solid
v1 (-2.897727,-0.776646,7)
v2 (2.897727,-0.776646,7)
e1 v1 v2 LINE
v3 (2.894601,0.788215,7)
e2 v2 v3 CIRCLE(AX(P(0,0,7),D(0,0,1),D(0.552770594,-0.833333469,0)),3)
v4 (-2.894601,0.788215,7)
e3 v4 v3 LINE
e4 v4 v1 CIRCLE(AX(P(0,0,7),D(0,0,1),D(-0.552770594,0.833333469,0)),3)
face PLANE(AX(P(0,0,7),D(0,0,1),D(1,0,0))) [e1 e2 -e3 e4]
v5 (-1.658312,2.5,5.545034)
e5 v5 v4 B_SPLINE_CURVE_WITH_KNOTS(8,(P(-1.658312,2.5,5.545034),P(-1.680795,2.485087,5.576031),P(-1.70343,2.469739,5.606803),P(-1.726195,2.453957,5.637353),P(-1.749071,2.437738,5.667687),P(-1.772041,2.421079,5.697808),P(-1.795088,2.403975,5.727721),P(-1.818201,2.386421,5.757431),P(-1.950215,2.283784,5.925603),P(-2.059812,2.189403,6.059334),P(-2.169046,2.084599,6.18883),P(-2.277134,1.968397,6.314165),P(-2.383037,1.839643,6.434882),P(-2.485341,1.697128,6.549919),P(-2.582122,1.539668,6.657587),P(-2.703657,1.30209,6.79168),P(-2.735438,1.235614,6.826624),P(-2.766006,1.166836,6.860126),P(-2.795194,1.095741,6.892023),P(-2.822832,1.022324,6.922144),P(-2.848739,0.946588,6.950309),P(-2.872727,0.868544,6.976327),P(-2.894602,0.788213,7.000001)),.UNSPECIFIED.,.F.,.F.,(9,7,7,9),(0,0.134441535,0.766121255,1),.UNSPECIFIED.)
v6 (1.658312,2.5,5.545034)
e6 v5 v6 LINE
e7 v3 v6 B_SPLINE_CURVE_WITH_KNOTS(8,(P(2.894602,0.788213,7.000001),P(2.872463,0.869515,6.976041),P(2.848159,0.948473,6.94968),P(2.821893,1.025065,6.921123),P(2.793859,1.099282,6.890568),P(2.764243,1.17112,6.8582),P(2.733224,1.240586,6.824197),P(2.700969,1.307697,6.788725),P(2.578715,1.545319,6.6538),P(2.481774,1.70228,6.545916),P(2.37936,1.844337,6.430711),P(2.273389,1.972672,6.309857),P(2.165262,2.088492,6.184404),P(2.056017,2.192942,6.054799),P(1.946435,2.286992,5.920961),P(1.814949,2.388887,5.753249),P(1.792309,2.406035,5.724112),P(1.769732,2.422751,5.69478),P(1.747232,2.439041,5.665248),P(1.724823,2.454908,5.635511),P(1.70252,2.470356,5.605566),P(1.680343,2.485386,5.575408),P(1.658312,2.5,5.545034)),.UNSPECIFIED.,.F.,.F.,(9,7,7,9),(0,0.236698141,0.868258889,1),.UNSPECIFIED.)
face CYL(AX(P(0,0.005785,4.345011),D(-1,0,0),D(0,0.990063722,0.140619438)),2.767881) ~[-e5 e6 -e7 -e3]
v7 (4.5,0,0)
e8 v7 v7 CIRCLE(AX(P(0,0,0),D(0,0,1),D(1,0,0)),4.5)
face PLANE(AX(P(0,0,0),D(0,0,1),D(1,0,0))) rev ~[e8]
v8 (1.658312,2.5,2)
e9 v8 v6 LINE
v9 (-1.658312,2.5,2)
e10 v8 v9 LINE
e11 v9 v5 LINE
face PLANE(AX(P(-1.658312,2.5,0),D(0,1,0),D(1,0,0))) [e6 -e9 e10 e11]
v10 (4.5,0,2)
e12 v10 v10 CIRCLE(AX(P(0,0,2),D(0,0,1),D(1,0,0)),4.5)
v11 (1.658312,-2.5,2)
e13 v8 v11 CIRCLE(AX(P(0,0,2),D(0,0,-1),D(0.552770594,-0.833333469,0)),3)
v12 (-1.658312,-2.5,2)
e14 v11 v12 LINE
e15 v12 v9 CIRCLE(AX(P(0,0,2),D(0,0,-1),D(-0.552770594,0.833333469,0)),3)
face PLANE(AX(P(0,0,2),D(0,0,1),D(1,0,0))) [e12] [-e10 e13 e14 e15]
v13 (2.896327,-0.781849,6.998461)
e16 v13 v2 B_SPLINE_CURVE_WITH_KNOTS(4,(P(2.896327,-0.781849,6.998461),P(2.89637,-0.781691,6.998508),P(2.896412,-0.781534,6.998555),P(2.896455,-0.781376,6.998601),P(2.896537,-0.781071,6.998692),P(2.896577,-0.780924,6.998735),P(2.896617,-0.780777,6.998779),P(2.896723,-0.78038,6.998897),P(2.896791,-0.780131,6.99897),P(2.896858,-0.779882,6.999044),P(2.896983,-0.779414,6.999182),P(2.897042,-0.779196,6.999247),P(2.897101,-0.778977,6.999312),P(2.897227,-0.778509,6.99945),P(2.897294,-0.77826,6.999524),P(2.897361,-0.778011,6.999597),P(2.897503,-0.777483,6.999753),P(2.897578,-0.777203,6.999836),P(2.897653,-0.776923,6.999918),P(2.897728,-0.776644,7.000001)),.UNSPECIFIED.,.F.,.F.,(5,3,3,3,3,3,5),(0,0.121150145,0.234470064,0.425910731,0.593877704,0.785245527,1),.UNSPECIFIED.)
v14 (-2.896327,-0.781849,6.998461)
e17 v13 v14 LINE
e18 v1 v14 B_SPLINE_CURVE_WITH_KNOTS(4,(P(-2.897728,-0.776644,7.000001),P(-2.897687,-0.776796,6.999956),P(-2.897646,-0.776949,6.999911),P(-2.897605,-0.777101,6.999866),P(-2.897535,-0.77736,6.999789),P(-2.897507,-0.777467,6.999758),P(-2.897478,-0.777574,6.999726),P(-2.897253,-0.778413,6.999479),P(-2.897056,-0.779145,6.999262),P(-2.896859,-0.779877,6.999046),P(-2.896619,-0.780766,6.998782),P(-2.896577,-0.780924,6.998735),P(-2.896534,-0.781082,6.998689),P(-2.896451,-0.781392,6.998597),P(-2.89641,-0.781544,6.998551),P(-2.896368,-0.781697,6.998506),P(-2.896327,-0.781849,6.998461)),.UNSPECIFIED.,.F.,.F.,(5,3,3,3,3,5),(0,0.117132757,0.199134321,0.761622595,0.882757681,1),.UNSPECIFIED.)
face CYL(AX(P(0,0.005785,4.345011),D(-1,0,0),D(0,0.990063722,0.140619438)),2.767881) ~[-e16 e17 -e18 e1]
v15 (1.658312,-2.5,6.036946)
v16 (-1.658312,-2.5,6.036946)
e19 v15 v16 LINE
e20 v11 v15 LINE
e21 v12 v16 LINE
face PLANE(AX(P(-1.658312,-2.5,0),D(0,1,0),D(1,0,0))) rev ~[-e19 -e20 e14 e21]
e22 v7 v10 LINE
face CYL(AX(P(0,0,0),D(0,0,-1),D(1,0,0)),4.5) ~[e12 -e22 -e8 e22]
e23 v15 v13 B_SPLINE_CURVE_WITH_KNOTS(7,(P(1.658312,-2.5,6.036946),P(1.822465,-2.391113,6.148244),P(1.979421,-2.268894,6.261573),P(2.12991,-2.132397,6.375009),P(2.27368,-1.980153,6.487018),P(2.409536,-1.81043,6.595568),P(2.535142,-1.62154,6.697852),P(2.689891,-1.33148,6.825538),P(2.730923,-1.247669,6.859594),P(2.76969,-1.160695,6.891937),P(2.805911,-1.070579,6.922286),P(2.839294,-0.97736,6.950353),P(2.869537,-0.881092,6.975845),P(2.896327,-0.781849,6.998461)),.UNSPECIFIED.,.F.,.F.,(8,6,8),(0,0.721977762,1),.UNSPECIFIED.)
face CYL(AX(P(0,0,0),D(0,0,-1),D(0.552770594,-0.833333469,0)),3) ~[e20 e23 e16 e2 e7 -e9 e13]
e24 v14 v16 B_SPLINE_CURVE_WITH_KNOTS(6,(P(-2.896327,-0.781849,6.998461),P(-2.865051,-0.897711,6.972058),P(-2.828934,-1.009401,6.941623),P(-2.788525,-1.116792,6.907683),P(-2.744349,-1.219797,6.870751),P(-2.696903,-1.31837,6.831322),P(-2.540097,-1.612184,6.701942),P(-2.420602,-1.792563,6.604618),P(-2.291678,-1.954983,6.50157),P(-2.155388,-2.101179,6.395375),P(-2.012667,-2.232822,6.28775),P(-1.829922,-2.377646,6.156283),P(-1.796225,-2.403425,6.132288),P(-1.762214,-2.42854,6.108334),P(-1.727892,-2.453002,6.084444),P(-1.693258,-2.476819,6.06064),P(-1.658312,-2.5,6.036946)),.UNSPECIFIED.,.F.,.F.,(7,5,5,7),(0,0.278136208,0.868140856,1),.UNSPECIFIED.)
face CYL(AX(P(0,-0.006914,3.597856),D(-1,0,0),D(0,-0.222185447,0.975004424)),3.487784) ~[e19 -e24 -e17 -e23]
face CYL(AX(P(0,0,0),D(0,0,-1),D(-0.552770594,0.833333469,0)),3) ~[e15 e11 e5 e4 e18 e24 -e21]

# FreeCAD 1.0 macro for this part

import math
import FreeCAD as App
import Part
import Sketcher
Q = App.Units.Quantity

doc = App.newDocument("Part")
body = doc.addObject("PartDesign::Body", "Body")

sketch1 = doc.addObject("Sketcher::SketchObject", "Sketch")
body.addObject(sketch1)
sketch1.AttachmentSupport = (doc.XY_Plane, [""])
sketch1.MapMode = "FlatFace"
sketch1.addGeometry(Part.Circle(App.Vector(0, 0, 0), App.Vector(0, 0, 1), 4.5), False)
sketch1.addConstraint(Sketcher.Constraint("Coincident", 0, 3, -1, 1))
sketch1.addConstraint(Sketcher.Constraint("Diameter", 0, Q("9 mm")))
pad1 = doc.addObject("PartDesign::Pad", "Pad")
body.addObject(pad1)
pad1.Profile = sketch1
pad1.Length = 2

sketch2 = doc.addObject("Sketcher::SketchObject", "Sketch001")
body.addObject(sketch2)
sketch2.AttachmentSupport = (doc.XY_Plane, [""])
sketch2.MapMode = "FlatFace"
sketch2.addGeometry(Part.ArcOfCircle(Part.Circle(App.Vector(0, 0, 0), App.Vector(0, 0, 1), 3), math.radians(123.557296), math.radians(236.442704)), False)
sketch2.addGeometry(Part.LineSegment(App.Vector(-1.658312, -2.5, 0), App.Vector(1.658312, -2.5, 0)), False)
sketch2.addGeometry(Part.ArcOfCircle(Part.Circle(App.Vector(0, 0, 0), App.Vector(0, 0, 1), 3), math.radians(-56.442704), math.radians(56.442704)), False)
sketch2.addGeometry(Part.LineSegment(App.Vector(1.658312, 2.5, 0), App.Vector(-1.658312, 2.5, 0)), False)
sketch2.addConstraint(Sketcher.Constraint("Coincident", 0, 2, 1, 1))
sketch2.addConstraint(Sketcher.Constraint("Coincident", 1, 2, 2, 1))
sketch2.addConstraint(Sketcher.Constraint("Coincident", 2, 2, 3, 1))
sketch2.addConstraint(Sketcher.Constraint("Coincident", 3, 2, 0, 1))
sketch2.addConstraint(Sketcher.Constraint("Horizontal", 1))
sketch2.addConstraint(Sketcher.Constraint("Horizontal", 3))
sketch2.addConstraint(Sketcher.Constraint("Coincident", 0, 3, -1, 1))
sketch2.addConstraint(Sketcher.Constraint("Coincident", 2, 3, -1, 1))
sketch2.addConstraint(Sketcher.Constraint("Equal", 0, 2))
sketch2.addConstraint(Sketcher.Constraint("Vertical", 1, 2, 2, 2))
sketch2.addConstraint(Sketcher.Constraint("Radius", 0, Q("3 mm")))
sketch2.addConstraint(Sketcher.Constraint("DistanceY", 1, 2, 2, 2, Q("5 mm")))
pad2 = doc.addObject("PartDesign::Pad", "Pad001")
body.addObject(pad2)
pad2.Profile = sketch2
pad2.Length = 7

sketch3 = doc.addObject("Sketcher::SketchObject", "Sketch002")
body.addObject(sketch3)
sketch3.AttachmentSupport = (doc.YZ_Plane, [""])
sketch3.MapMode = "FlatFace"
sketch3.addGeometry(Part.ArcOfCircle(Part.Circle(App.Vector(0.005785, 4.345011, 0), App.Vector(0, 0, 1), 2.767881), math.radians(8.083692), math.radians(106.532673)), False)
sketch3.addGeometry(Part.LineSegment(App.Vector(2.746163, 4.734229, 0), App.Vector(2.746163, 8.966747, 0)), False)
sketch3.addGeometry(Part.LineSegment(App.Vector(2.746163, 8.966747, 0), App.Vector(-4.129342, 8.966747, 0)), False)
sketch3.addGeometry(Part.LineSegment(App.Vector(-4.129342, 8.966747, 0), App.Vector(-4.129342, 5.542254, 0)), False)
sketch3.addGeometry(Part.LineSegment(App.Vector(-4.129342, 5.542254, 0), App.Vector(-2.90242, 5.542254, 0)), False)
sketch3.addGeometry(Part.ArcOfCircle(Part.Circle(App.Vector(-0.006914, 3.597856, 0), App.Vector(0, 0, 1), 3.487784), math.radians(102.837427), math.radians(146.117745)), False)
sketch3.addConstraint(Sketcher.Constraint("Coincident", 0, 1, 1, 1))
sketch3.addConstraint(Sketcher.Constraint("Coincident", 1, 2, 2, 1))
sketch3.addConstraint(Sketcher.Constraint("Coincident", 2, 2, 3, 1))
sketch3.addConstraint(Sketcher.Constraint("Coincident", 3, 2, 4, 1))
sketch3.addConstraint(Sketcher.Constraint("Coincident", 4, 2, 5, 2))
sketch3.addConstraint(Sketcher.Constraint("Coincident", 5, 1, 0, 2))
sketch3.addConstraint(Sketcher.Constraint("Vertical", 1))
sketch3.addConstraint(Sketcher.Constraint("Horizontal", 2))
sketch3.addConstraint(Sketcher.Constraint("Vertical", 3))
sketch3.addConstraint(Sketcher.Constraint("Horizontal", 4))
sketch3.addConstraint(Sketcher.Constraint("Radius", 0, Q("2.767881 mm")))
sketch3.addConstraint(Sketcher.Constraint("Radius", 5, Q("3.487784 mm")))
sketch3.addConstraint(Sketcher.Constraint("DistanceX", 5, 3, 0, 3, Q("0.012699 mm")))
sketch3.addConstraint(Sketcher.Constraint("DistanceX", 2, 2, 2, 1, Q("6.875505 mm")))
sketch3.addConstraint(Sketcher.Constraint("DistanceX", 4, 1, 4, 2, Q("1.226922 mm")))
sketch3.addConstraint(Sketcher.Constraint("DistanceY", 1, 1, 1, 2, Q("4.232518 mm")))
sketch3.addConstraint(Sketcher.Constraint("DistanceY", 3, 2, 3, 1, Q("3.424493 mm")))
sketch3.addConstraint(Sketcher.Constraint("DistanceY", -1, 1, 0, 3, Q("4.345011 mm")))
sketch3.addConstraint(Sketcher.Constraint("DistanceY", -1, 1, 0, 1, Q("4.734229 mm")))
sketch3.addConstraint(Sketcher.Constraint("DistanceX", 4, 2, -1, 1, Q("2.90242 mm")))
pocket1 = doc.addObject("PartDesign::Pocket", "Pocket")
body.addObject(pocket1)
pocket1.Profile = sketch3
pocket1.Type = "ThroughAll"
pocket1.Midplane = True

doc.recompute()
